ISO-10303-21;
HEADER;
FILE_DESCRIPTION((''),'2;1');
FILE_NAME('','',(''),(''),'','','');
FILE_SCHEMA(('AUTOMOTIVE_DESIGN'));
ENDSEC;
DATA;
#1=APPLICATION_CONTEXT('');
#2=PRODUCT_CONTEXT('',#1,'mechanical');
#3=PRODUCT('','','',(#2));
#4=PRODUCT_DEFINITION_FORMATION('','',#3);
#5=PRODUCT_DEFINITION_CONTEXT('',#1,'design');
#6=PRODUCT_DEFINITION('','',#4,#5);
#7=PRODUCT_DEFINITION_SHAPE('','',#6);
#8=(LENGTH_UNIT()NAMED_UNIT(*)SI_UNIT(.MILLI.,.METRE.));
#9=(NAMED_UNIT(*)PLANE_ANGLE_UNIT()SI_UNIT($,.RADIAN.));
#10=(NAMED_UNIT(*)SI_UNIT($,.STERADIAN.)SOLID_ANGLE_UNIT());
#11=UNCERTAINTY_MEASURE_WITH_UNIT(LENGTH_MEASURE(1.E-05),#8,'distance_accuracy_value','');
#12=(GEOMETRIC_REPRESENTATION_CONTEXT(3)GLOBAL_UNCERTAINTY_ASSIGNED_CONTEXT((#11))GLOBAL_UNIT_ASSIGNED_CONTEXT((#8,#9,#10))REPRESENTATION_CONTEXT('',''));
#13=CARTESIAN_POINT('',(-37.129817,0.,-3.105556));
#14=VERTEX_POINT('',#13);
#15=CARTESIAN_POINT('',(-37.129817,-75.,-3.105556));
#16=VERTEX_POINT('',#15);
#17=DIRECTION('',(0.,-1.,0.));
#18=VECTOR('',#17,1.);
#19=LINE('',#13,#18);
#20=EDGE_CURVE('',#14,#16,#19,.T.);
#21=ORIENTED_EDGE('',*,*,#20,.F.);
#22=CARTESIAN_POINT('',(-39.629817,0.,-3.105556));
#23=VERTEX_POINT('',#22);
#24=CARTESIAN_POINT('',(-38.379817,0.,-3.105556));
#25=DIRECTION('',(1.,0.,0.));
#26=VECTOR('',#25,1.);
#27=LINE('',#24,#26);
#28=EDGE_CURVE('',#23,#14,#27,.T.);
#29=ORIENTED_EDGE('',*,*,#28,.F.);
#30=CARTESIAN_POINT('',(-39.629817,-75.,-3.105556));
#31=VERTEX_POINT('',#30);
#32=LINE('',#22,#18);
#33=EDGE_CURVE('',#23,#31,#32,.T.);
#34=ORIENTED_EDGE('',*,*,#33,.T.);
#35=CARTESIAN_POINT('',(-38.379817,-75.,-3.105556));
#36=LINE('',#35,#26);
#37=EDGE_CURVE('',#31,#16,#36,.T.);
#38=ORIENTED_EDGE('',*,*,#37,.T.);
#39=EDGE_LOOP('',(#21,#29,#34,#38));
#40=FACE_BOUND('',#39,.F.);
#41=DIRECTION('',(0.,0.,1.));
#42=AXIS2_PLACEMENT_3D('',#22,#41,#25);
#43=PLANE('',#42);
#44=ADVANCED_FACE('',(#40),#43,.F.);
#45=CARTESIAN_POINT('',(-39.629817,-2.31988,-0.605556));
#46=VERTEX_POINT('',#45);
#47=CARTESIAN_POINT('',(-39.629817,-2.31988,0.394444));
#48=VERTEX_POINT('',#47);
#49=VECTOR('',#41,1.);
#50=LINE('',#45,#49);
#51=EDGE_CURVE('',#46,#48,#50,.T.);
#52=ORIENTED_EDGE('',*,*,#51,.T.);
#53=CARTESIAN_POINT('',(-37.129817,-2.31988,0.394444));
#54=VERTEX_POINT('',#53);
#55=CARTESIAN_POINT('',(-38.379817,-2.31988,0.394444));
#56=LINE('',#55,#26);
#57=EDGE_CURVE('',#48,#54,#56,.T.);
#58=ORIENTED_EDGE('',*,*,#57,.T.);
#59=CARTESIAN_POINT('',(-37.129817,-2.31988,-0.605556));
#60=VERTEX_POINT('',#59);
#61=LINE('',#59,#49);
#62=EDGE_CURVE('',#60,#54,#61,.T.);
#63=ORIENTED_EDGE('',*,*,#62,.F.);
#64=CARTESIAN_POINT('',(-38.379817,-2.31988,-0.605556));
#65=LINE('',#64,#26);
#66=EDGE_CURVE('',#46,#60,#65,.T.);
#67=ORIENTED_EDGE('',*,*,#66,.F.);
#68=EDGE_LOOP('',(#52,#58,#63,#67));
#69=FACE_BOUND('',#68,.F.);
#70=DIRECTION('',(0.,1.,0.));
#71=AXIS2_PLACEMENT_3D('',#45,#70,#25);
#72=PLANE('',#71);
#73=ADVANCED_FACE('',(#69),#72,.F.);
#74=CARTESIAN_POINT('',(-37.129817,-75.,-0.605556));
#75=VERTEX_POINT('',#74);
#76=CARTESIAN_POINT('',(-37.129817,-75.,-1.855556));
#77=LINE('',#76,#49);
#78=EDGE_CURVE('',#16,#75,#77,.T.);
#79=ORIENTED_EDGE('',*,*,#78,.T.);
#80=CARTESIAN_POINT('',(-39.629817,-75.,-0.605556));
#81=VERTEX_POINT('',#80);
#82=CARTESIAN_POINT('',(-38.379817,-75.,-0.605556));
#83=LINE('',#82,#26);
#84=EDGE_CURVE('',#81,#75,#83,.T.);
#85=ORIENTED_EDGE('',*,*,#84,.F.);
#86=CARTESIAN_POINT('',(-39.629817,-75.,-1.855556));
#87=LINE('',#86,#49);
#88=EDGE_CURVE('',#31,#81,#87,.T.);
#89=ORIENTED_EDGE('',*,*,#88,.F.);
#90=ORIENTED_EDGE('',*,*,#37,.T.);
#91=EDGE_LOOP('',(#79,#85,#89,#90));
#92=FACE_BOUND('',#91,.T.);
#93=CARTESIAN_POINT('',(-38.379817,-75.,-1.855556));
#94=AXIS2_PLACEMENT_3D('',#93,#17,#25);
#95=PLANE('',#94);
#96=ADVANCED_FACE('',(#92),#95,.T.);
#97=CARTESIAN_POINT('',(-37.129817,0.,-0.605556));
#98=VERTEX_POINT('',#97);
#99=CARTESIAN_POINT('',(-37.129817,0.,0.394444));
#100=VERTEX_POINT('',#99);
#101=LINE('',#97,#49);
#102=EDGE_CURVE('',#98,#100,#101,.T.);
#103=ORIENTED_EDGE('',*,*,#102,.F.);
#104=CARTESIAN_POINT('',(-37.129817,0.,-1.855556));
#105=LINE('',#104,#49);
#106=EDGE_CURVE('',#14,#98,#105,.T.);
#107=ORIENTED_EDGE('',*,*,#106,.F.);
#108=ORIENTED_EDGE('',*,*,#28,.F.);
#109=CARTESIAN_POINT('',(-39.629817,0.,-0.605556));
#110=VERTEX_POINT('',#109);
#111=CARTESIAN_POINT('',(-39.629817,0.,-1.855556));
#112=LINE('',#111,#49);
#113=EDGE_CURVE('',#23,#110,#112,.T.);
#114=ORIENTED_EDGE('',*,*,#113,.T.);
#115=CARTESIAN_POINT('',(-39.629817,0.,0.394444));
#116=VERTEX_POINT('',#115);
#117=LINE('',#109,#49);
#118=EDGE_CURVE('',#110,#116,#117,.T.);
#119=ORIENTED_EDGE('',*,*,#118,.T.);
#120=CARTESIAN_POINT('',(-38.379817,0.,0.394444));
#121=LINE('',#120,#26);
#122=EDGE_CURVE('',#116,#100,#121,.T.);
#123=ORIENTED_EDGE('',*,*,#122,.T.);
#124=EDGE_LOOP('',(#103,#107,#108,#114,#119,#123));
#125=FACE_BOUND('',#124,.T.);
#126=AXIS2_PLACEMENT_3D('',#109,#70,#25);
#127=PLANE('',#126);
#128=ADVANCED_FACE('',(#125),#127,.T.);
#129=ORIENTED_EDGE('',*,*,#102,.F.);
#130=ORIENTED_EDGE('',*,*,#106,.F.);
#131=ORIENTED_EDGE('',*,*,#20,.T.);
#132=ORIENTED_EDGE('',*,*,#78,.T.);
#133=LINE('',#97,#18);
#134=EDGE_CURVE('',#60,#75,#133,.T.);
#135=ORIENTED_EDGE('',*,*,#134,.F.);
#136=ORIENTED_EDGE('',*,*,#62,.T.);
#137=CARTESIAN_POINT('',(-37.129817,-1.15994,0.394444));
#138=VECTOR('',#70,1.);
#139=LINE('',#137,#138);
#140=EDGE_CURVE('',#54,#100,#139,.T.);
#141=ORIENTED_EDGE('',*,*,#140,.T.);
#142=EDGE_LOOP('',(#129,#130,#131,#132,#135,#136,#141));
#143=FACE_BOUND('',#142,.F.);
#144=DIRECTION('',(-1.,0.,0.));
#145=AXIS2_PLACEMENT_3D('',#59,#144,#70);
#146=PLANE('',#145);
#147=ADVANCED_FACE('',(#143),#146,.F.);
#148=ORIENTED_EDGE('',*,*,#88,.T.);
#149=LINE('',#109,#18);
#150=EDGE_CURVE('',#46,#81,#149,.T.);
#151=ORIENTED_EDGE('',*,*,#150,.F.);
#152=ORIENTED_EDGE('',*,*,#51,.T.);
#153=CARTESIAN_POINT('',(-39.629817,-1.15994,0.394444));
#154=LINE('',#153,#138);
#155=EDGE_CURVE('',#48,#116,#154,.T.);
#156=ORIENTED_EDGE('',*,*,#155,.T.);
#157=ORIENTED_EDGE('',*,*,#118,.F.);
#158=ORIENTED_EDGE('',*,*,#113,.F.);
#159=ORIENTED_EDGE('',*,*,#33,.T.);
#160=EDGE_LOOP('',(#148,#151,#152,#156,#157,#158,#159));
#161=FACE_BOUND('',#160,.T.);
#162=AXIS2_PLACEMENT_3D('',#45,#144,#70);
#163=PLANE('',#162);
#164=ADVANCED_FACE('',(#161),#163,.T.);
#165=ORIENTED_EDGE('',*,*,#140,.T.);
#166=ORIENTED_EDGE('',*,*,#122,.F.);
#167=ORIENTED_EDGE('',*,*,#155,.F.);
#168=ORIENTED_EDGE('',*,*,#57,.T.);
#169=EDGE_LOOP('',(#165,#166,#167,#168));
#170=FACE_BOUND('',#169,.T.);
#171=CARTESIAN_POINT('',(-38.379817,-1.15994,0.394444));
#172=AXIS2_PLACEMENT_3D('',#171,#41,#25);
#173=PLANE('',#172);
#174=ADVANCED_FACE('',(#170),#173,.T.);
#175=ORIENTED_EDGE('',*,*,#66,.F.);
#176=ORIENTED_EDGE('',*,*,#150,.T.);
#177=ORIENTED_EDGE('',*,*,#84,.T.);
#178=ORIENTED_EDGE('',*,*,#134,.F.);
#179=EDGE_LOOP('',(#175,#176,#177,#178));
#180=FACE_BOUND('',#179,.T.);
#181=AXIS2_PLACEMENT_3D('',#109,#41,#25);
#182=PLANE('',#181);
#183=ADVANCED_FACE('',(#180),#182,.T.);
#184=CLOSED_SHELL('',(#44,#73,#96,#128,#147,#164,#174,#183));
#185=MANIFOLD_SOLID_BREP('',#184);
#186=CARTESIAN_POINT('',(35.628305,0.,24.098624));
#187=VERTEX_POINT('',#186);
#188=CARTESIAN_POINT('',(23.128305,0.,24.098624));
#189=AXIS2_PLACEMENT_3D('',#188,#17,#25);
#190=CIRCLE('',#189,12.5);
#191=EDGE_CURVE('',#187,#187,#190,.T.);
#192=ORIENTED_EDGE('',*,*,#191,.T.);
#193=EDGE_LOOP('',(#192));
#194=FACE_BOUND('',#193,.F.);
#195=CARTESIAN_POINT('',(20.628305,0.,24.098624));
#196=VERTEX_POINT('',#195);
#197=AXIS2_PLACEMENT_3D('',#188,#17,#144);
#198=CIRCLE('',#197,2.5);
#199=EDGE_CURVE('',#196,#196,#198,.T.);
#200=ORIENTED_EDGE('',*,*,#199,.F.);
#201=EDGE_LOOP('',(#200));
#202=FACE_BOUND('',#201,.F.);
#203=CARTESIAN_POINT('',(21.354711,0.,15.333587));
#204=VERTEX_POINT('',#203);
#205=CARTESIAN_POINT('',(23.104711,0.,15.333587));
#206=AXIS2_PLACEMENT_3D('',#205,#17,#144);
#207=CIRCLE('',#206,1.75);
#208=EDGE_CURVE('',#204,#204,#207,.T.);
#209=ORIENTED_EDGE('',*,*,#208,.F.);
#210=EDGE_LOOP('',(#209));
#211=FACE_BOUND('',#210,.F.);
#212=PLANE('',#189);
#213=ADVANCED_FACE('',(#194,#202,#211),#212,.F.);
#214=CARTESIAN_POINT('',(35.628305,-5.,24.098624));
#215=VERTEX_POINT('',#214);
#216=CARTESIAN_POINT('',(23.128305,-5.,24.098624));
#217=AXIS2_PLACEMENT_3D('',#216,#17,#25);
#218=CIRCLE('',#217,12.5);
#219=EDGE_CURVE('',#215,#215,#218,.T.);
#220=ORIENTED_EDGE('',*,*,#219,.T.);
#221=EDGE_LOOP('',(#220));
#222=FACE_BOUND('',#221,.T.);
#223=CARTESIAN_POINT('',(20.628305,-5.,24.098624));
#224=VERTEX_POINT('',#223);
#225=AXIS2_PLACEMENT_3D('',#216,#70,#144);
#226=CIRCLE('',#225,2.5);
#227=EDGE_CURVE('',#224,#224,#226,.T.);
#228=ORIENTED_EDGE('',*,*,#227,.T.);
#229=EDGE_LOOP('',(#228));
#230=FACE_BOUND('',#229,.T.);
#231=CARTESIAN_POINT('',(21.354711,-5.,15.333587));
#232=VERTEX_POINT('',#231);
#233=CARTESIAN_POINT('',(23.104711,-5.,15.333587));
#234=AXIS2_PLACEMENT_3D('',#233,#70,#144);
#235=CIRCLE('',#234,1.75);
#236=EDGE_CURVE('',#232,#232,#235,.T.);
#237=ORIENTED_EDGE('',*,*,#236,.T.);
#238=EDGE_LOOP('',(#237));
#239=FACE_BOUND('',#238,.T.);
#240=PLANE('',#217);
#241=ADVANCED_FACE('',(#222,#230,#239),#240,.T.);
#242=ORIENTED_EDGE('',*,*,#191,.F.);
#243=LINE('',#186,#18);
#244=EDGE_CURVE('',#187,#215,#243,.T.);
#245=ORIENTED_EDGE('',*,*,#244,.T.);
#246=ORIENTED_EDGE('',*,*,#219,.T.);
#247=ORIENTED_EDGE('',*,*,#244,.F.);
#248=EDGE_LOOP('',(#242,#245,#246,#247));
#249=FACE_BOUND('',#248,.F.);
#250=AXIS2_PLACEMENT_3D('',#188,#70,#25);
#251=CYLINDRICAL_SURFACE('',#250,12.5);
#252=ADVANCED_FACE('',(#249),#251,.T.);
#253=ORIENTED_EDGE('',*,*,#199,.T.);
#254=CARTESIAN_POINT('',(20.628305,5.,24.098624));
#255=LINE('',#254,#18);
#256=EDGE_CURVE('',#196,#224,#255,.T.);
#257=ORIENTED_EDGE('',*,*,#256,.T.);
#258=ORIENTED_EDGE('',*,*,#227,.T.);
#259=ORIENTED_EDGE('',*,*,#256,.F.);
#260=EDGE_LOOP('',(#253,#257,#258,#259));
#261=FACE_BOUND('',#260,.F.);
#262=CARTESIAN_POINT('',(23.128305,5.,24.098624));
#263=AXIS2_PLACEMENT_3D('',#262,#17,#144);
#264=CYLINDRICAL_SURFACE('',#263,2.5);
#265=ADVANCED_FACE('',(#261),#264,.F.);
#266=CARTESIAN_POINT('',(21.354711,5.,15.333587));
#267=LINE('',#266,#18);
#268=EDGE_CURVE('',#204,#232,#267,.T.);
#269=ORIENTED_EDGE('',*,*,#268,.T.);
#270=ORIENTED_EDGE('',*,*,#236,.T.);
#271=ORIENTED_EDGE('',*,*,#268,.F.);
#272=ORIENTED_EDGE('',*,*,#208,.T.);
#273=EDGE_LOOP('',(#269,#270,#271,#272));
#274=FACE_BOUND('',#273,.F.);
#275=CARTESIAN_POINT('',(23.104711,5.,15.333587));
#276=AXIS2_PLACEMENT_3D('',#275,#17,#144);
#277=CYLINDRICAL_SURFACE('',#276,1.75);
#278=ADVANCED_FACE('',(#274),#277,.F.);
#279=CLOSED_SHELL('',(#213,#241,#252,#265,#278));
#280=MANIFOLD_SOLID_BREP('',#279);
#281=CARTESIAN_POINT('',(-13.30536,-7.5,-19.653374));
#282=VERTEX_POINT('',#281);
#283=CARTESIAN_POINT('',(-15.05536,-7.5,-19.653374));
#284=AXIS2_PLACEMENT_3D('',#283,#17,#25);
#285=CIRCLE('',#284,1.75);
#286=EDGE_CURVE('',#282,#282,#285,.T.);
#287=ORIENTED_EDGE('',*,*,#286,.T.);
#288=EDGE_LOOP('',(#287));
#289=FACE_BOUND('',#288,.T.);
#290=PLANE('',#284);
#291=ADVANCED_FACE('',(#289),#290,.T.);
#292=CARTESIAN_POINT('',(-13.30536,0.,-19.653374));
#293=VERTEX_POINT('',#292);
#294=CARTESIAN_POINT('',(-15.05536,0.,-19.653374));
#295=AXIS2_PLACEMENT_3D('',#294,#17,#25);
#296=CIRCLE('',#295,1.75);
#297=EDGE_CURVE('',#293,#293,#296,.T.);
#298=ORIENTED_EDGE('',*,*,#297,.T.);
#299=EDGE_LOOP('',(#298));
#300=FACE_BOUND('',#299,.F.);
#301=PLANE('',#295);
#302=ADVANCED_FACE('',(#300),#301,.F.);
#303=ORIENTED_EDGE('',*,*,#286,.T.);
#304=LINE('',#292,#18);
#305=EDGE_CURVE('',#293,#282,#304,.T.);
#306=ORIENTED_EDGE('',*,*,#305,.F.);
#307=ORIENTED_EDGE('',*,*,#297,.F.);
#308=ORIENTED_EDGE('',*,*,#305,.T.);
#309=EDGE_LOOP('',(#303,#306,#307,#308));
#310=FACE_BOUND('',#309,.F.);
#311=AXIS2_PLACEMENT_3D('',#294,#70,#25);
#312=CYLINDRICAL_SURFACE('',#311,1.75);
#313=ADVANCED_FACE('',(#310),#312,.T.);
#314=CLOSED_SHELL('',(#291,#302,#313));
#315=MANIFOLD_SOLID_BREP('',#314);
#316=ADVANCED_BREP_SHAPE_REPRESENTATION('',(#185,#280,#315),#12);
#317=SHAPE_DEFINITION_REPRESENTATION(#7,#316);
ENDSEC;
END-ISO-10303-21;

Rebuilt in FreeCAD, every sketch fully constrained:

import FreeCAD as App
import Part
import Sketcher
from FreeCAD import Vector


def add_polygon(sketch, points):
    """Adds a closed chain of lines whose ends are joined by coincident constraints."""
    first, n = sketch.GeometryCount, len(points)
    for a, b in zip(points, points[1:] + points[:1]):
        sketch.addGeometry(Part.LineSegment(App.Vector(*a, 0), App.Vector(*b, 0)), False)
    for i in range(n):
        sketch.addConstraint(Sketcher.Constraint("Coincident", first + i, 2, first + (i + 1) % n, 1))

doc = App.newDocument("Part")
body = doc.addObject("PartDesign::Body", "Body")

sketch1 = body.newObject("Sketcher::SketchObject", "Sketch")
sketch1.AttachmentSupport = (doc.getObject("XZ_Plane"), [""])
sketch1.MapMode = "FlatFace"
sketch1.addGeometry(Part.Circle(Vector(23.128305, 24.098624, 0), Vector(0, 0, 1), 12.5), False)
sketch1.addConstraint([
    Sketcher.Constraint("Diameter", 0, 25.0),
    Sketcher.Constraint("DistanceX", -1, 1, 0, 3, 23.128305),
    Sketcher.Constraint("DistanceY", -1, 1, 0, 3, 24.098624),
])
pad1 = body.newObject("PartDesign::Pad", "Pad")
pad1.Profile = sketch1
pad1.Length = 5

sketch2 = body.newObject("Sketcher::SketchObject", "Sketch001")
sketch2.AttachmentSupport = (doc.getObject("XZ_Plane"), [""])
sketch2.MapMode = "FlatFace"
sketch2.addGeometry(Part.Circle(Vector(23.128305, 24.098624, 0), Vector(0, 0, 1), 2.5), False)
sketch2.addConstraint([
    Sketcher.Constraint("Diameter", 0, 5.0),
    Sketcher.Constraint("DistanceX", -1, 1, 0, 3, 23.128305),
    Sketcher.Constraint("DistanceY", -1, 1, 0, 3, 24.098624),
])
doc.recompute()
hole = body.newObject("PartDesign::Hole", "Hole")
hole.Profile = sketch2
hole.ThreadType = "None"
hole.Diameter = 5
hole.DepthType = "Dimension"
hole.Depth = 5
hole.DrillPoint = "Angled"
hole.DrillPointAngle = 118
hole.Reversed = True

sketch3 = body.newObject("Sketcher::SketchObject", "Sketch002")
sketch3.AttachmentSupport = (doc.getObject("XZ_Plane"), [""])
sketch3.MapMode = "FlatFace"
sketch3.addGeometry(Part.Circle(Vector(23.104711, 15.333587, 0), Vector(0, 0, 1), 1.75), False)
sketch3.addConstraint([
    Sketcher.Constraint("Diameter", 0, 3.5),
    Sketcher.Constraint("DistanceX", -1, 1, 0, 3, 23.104711),
    Sketcher.Constraint("DistanceY", -1, 1, 0, 3, 15.333587),
])
doc.recompute()
hole2 = body.newObject("PartDesign::Hole", "Hole001")
hole2.Profile = sketch3
hole2.ThreadType = "None"
hole2.Diameter = 3.5
hole2.DepthType = "Dimension"
hole2.Depth = 5
hole2.DrillPoint = "Angled"
hole2.DrillPointAngle = 118
hole2.Reversed = True
body2 = doc.addObject("PartDesign::Body", "Body001")

sketch4 = body2.newObject("Sketcher::SketchObject", "Sketch003")
sketch4.AttachmentSupport = (doc.getObject("XZ_Plane001"), [""])
sketch4.MapMode = "FlatFace"
sketch4.addGeometry(Part.Circle(Vector(-15.05536, -19.653374, 0), Vector(0, 0, 1), 1.75), False)
sketch4.addConstraint([
    Sketcher.Constraint("Diameter", 0, 3.5),
    Sketcher.Constraint("DistanceX", 0, 3, -1, 1, 15.05536),
    Sketcher.Constraint("DistanceY", 0, 3, -1, 1, 19.653374),
])
pad2 = body2.newObject("PartDesign::Pad", "Pad001")
pad2.Profile = sketch4
pad2.Length = 7.5
body3 = doc.addObject("PartDesign::Body", "Body002")

sketch5 = body3.newObject("Sketcher::SketchObject", "Sketch004")
sketch5.AttachmentSupport = (doc.getObject("XZ_Plane002"), [""])
sketch5.MapMode = "FlatFace"
add_polygon(sketch5, [(-39.629817, -0.605556), (-39.629817, -3.105556), (-37.129817, -3.105556), (-37.129817, -0.605556)])
sketch5.addConstraint([
    Sketcher.Constraint("Vertical", 0),
    Sketcher.Constraint("Horizontal", 1),
    Sketcher.Constraint("Vertical", 2),
    Sketcher.Constraint("Horizontal", 3),
    Sketcher.Constraint("Equal", 3, 0),
    Sketcher.Constraint("DistanceX", 1, 1, 1, 2, 2.5),
    Sketcher.Constraint("DistanceX", 0, 2, -1, 1, 39.629817),
    Sketcher.Constraint("DistanceY", 0, 2, -1, 1, 3.105556),
])
pad3 = body3.newObject("PartDesign::Pad", "Pad002")
pad3.Profile = sketch5
pad3.Length = 75

sketch6 = body3.newObject("Sketcher::SketchObject", "Sketch005")
sketch6.AttachmentSupport = (doc.getObject("XY_Plane002"), [""])
sketch6.MapMode = "FlatFace"
sketch6.AttachmentOffset = App.Placement(Vector(0, 0, -0.605556), App.Rotation())
add_polygon(sketch6, [(-39.629817, 0), (-39.629817, -2.31988), (-37.129817, -2.31988), (-37.129817, 0)])
sketch6.addConstraint([
    Sketcher.Constraint("Vertical", 0),
    Sketcher.Constraint("Horizontal", 1),
    Sketcher.Constraint("Vertical", 2),
    Sketcher.Constraint("Horizontal", 3),
    Sketcher.Constraint("PointOnObject", 2, 2, -1),
    Sketcher.Constraint("DistanceX", 1, 1, 1, 2, 2.5),
    Sketcher.Constraint("DistanceY", 0, 2, 0, 1, 2.31988),
    Sketcher.Constraint("DistanceX", 0, 2, -1, 1, 39.629817),
])
pad4 = body3.newObject("PartDesign::Pad", "Pad003")
pad4.Profile = sketch6
pad4.Length = 1

doc.recompute()
